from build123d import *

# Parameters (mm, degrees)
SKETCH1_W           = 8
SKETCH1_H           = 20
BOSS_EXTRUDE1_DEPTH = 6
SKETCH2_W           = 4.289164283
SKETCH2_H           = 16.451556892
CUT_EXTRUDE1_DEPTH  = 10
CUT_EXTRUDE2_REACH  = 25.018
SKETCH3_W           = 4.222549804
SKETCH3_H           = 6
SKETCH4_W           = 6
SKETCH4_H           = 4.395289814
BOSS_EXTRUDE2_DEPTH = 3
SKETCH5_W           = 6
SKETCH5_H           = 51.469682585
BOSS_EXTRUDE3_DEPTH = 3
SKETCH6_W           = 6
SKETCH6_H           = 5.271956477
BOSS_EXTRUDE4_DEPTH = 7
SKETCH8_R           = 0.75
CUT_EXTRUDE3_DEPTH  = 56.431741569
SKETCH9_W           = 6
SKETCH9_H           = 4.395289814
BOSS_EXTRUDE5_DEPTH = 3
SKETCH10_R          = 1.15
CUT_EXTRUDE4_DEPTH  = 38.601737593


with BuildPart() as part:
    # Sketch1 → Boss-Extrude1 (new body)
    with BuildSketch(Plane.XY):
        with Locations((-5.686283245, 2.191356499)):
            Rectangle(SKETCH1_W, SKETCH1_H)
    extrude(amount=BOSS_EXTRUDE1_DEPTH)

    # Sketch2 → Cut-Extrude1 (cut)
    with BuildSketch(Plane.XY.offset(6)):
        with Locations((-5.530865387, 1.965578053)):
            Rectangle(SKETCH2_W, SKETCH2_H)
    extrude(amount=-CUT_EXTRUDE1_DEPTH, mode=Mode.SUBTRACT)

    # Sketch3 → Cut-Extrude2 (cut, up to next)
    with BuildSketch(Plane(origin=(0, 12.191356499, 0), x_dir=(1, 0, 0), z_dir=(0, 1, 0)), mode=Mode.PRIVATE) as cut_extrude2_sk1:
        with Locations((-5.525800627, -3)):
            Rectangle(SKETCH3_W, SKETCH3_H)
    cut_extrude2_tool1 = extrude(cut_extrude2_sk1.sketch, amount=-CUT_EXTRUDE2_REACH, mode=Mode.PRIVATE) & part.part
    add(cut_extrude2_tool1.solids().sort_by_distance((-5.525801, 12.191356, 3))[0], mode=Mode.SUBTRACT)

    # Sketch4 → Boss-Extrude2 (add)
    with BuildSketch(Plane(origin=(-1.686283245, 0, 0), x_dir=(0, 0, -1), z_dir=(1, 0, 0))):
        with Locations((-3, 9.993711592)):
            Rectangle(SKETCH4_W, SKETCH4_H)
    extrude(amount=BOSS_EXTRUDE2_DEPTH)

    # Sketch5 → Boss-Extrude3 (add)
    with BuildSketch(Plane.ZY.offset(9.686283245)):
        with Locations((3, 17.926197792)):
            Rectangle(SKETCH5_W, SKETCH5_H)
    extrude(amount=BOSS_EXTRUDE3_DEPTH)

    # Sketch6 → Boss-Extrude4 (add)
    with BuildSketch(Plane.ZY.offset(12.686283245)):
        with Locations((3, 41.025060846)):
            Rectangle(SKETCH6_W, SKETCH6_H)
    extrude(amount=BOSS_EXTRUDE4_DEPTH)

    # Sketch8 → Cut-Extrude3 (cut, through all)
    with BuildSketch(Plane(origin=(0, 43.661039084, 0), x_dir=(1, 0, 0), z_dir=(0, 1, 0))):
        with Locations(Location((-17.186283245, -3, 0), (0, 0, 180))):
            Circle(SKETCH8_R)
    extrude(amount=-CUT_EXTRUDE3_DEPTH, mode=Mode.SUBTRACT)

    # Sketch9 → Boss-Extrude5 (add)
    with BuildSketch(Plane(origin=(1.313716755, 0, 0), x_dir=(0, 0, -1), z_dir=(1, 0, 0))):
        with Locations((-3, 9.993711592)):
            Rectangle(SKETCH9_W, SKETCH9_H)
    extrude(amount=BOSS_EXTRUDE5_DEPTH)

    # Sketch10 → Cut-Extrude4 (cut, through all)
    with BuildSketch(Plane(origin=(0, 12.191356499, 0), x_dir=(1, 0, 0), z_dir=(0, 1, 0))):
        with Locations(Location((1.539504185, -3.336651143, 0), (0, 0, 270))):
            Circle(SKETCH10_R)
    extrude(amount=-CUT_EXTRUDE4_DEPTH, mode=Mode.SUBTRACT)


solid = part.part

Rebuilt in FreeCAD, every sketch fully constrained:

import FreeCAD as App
import Part
import Sketcher

V = App.Vector

doc = App.newDocument("Part")
body = doc.addObject("PartDesign::Body", "Body")

sketch1 = body.newObject("Sketcher::SketchObject", "Sketch")
sketch1.AttachmentSupport = (doc.getObject("XY_Plane"), [""])
sketch1.MapMode = "FlatFace"
sketch1.addGeometry([
    Part.LineSegment(V(-10, 12, 0), V(-10, -8, 0)),
    Part.LineSegment(V(-10, -8, 0), V(-2, -8, 0)),
    Part.LineSegment(V(-2, -8, 0), V(-2, 12, 0)),
    Part.LineSegment(V(-2, 12, 0), V(-10, 12, 0)),
], False)
sketch1.addConstraint([
    Sketcher.Constraint("Coincident", 0, 2, 1, 1),
    Sketcher.Constraint("Coincident", 1, 2, 2, 1),
    Sketcher.Constraint("Coincident", 2, 2, 3, 1),
    Sketcher.Constraint("Coincident", 3, 2, 0, 1),
    Sketcher.Constraint("Vertical", 0),
    Sketcher.Constraint("Horizontal", 1),
    Sketcher.Constraint("Vertical", 2),
    Sketcher.Constraint("Horizontal", 3),
    Sketcher.Constraint("DistanceX", 1, 1, 1, 2, 8.0),
    Sketcher.Constraint("DistanceY", 0, 2, 0, 1, 20.0),
    Sketcher.Constraint("DistanceX", 0, 2, -1, 1, 9.686283),
    Sketcher.Constraint("DistanceY", 0, 2, -1, 1, 7.808644),
])
pad1 = body.newObject("PartDesign::Pad", "Pad")
pad1.Profile = sketch1
pad1.Length = 6

sketch2 = body.newObject("Sketcher::SketchObject", "Sketch001")
sketch2.AttachmentSupport = (doc.getObject("XY_Plane"), [""])
sketch2.MapMode = "FlatFace"
sketch2.AttachmentOffset = App.Placement(V(0, 0, 6), App.Rotation())
sketch2.addGeometry([
    Part.LineSegment(V(-7.7, 10.2, 0), V(-7.7, -6.3, 0)),
    Part.LineSegment(V(-7.7, -6.3, 0), V(-3.4, -6.3, 0)),
    Part.LineSegment(V(-3.4, -6.3, 0), V(-3.4, 10.2, 0)),
    Part.LineSegment(V(-3.4, 10.2, 0), V(-7.7, 10.2, 0)),
], False)
sketch2.addConstraint([
    Sketcher.Constraint("Coincident", 0, 2, 1, 1),
    Sketcher.Constraint("Coincident", 1, 2, 2, 1),
    Sketcher.Constraint("Coincident", 2, 2, 3, 1),
    Sketcher.Constraint("Coincident", 3, 2, 0, 1),
    Sketcher.Constraint("Vertical", 0),
    Sketcher.Constraint("Horizontal", 1),
    Sketcher.Constraint("Vertical", 2),
    Sketcher.Constraint("Horizontal", 3),
    Sketcher.Constraint("DistanceY", 0, 2, -1, 1, 6.2602),
    Sketcher.Constraint("DistanceX", 1, 1, 1, 2, 4.289164),
    Sketcher.Constraint("DistanceY", 0, 2, 0, 1, 16.451557),
    Sketcher.Constraint("DistanceX", 0, 2, -1, 1, 7.675448),
])
pocket1 = body.newObject("PartDesign::Pocket", "Pocket")
pocket1.Profile = sketch2
pocket1.Length = 10

sketch3 = body.newObject("Sketcher::SketchObject", "Sketch002")
sketch3.AttachmentSupport = (doc.getObject("XZ_Plane"), [""])
sketch3.MapMode = "FlatFace"
sketch3.AttachmentOffset = App.Placement(V(0, 0, -12.191356), App.Rotation())
sketch3.addGeometry([
    Part.LineSegment(V(-7.6, 0, 0), V(-7.6, 6, 0)),
    Part.LineSegment(V(-7.6, 6, 0), V(-3.4, 6, 0)),
    Part.LineSegment(V(-3.4, 6, 0), V(-3.4, 0, 0)),
    Part.LineSegment(V(-3.4, 0, 0), V(-7.6, 0, 0)),
], False)
sketch3.addConstraint([
    Sketcher.Constraint("Coincident", 0, 2, 1, 1),
    Sketcher.Constraint("Coincident", 1, 2, 2, 1),
    Sketcher.Constraint("Coincident", 2, 2, 3, 1),
    Sketcher.Constraint("Coincident", 3, 2, 0, 1),
    Sketcher.Constraint("Vertical", 0),
    Sketcher.Constraint("Horizontal", 1),
    Sketcher.Constraint("Vertical", 2),
    Sketcher.Constraint("Horizontal", 3),
    Sketcher.Constraint("PointOnObject", 2, 2, -1),
    Sketcher.Constraint("DistanceY", 0, 1, 0, 2, 6.0),
    Sketcher.Constraint("DistanceX", 1, 1, 1, 2, 4.22255),
    Sketcher.Constraint("DistanceX", 0, 2, -1, 1, 7.637076),
])
pocket2 = body.newObject("PartDesign::Pocket", "Pocket001")
pocket2.Profile = sketch3
pocket2.Type = "UpToFirst"
pocket2.Reversed = True

sketch4 = body.newObject("Sketcher::SketchObject", "Sketch003")
sketch4.AttachmentSupport = (doc.getObject("YZ_Plane"), [""])
sketch4.MapMode = "FlatFace"
sketch4.AttachmentOffset = App.Placement(V(0, 0, -1.686283), App.Rotation())
sketch4.addGeometry([
    Part.LineSegment(V(12.2, 6, 0), V(7.8, 6, 0)),
    Part.LineSegment(V(7.8, 6, 0), V(7.8, 0, 0)),
    Part.LineSegment(V(7.8, 0, 0), V(12.2, 0, 0)),
    Part.LineSegment(V(12.2, 0, 0), V(12.2, 6, 0)),
], False)
sketch4.addConstraint([
    Sketcher.Constraint("Coincident", 0, 2, 1, 1),
    Sketcher.Constraint("Coincident", 1, 2, 2, 1),
    Sketcher.Constraint("Coincident", 2, 2, 3, 1),
    Sketcher.Constraint("Coincident", 3, 2, 0, 1),
    Sketcher.Constraint("Horizontal", 0),
    Sketcher.Constraint("Vertical", 1),
    Sketcher.Constraint("Horizontal", 2),
    Sketcher.Constraint("Vertical", 3),
    Sketcher.Constraint("PointOnObject", 1, 2, -1),
    Sketcher.Constraint("DistanceY", 1, 2, 1, 1, 6.0),
    Sketcher.Constraint("DistanceX", 0, 2, 0, 1, 4.39529),
    Sketcher.Constraint("DistanceX", -1, 1, 0, 2, 7.796067),
])
pad2 = body.newObject("PartDesign::Pad", "Pad001")
pad2.Profile = sketch4
pad2.Length = 3

sketch5 = body.newObject("Sketcher::SketchObject", "Sketch004")
sketch5.AttachmentSupport = (doc.getObject("YZ_Plane"), [""])
sketch5.MapMode = "FlatFace"
sketch5.AttachmentOffset = App.Placement(V(0, 0, -9.686283), App.Rotation())
sketch5.addGeometry([
    Part.LineSegment(V(44, 0, 0), V(-8, 0, 0)),
    Part.LineSegment(V(-8, 0, 0), V(-8, 6, 0)),
    Part.LineSegment(V(-8, 6, 0), V(44, 6, 0)),
    Part.LineSegment(V(44, 6, 0), V(44, 0, 0)),
], False)
sketch5.addConstraint([
    Sketcher.Constraint("Coincident", 0, 2, 1, 1),
    Sketcher.Constraint("Coincident", 1, 2, 2, 1),
    Sketcher.Constraint("Coincident", 2, 2, 3, 1),
    Sketcher.Constraint("Coincident", 3, 2, 0, 1),
    Sketcher.Constraint("Horizontal", 0),
    Sketcher.Constraint("Vertical", 1),
    Sketcher.Constraint("Horizontal", 2),
    Sketcher.Constraint("Vertical", 3),
    Sketcher.Constraint("PointOnObject", 0, 2, -1),
    Sketcher.Constraint("DistanceY", 1, 1, 1, 2, 6.0),
    Sketcher.Constraint("DistanceX", 0, 2, 0, 1, 51.469683),
    Sketcher.Constraint("DistanceX", -1, 1, 2, 2, 43.661039),
])
pad3 = body.newObject("PartDesign::Pad", "Pad002")
pad3.Profile = sketch5
pad3.Length = 3
pad3.Reversed = True

sketch6 = body.newObject("Sketcher::SketchObject", "Sketch005")
sketch6.AttachmentSupport = (doc.getObject("YZ_Plane"), [""])
sketch6.MapMode = "FlatFace"
sketch6.AttachmentOffset = App.Placement(V(0, 0, -12.686283), App.Rotation())
sketch6.addGeometry([
    Part.LineSegment(V(44, 0, 0), V(38, 0, 0)),
    Part.LineSegment(V(38, 0, 0), V(38, 6, 0)),
    Part.LineSegment(V(38, 6, 0), V(44, 6, 0)),
    Part.LineSegment(V(44, 6, 0), V(44, 0, 0)),
], False)
sketch6.addConstraint([
    Sketcher.Constraint("Coincident", 0, 2, 1, 1),
    Sketcher.Constraint("Coincident", 1, 2, 2, 1),
    Sketcher.Constraint("Coincident", 2, 2, 3, 1),
    Sketcher.Constraint("Coincident", 3, 2, 0, 1),
    Sketcher.Constraint("Horizontal", 0),
    Sketcher.Constraint("Vertical", 1),
    Sketcher.Constraint("Horizontal", 2),
    Sketcher.Constraint("Vertical", 3),
    Sketcher.Constraint("PointOnObject", 0, 2, -1),
    Sketcher.Constraint("DistanceY", 1, 1, 1, 2, 6.0),
    Sketcher.Constraint("DistanceX", 0, 2, 0, 1, 5.271956),
    Sketcher.Constraint("DistanceX", -1, 1, 2, 2, 43.661039),
])
pad4 = body.newObject("PartDesign::Pad", "Pad003")
pad4.Profile = sketch6
pad4.Length = 7
pad4.Reversed = True

sketch7 = body.newObject("Sketcher::SketchObject", "Sketch006")
sketch7.AttachmentSupport = (doc.getObject("XZ_Plane"), [""])
sketch7.MapMode = "FlatFace"
sketch7.AttachmentOffset = App.Placement(V(0, 0, -43.661039), App.Rotation())
sketch7.addGeometry(Part.Circle(V(-17.2, 3, 0), V(0, 0, 1), 0.8), False)
sketch7.addConstraint([
    Sketcher.Constraint("Diameter", 0, 1.5),
    Sketcher.Constraint("DistanceY", -1, 1, 0, 3, 3.0),
    Sketcher.Constraint("DistanceX", 0, 3, -1, 1, 17.186283),
])
pocket3 = body.newObject("PartDesign::Pocket", "Pocket002")
pocket3.Profile = sketch7
pocket3.Type = "ThroughAll"
pocket3.Reversed = True

sketch8 = body.newObject("Sketcher::SketchObject", "Sketch007")
sketch8.AttachmentSupport = (doc.getObject("YZ_Plane"), [""])
sketch8.MapMode = "FlatFace"
sketch8.AttachmentOffset = App.Placement(V(0, 0, 1.313717), App.Rotation())
sketch8.addGeometry([
    Part.LineSegment(V(12.2, 6, 0), V(7.8, 6, 0)),
    Part.LineSegment(V(7.8, 6, 0), V(7.8, 0, 0)),
    Part.LineSegment(V(7.8, 0, 0), V(12.2, 0, 0)),
    Part.LineSegment(V(12.2, 0, 0), V(12.2, 6, 0)),
], False)
sketch8.addConstraint([
    Sketcher.Constraint("Coincident", 0, 2, 1, 1),
    Sketcher.Constraint("Coincident", 1, 2, 2, 1),
    Sketcher.Constraint("Coincident", 2, 2, 3, 1),
    Sketcher.Constraint("Coincident", 3, 2, 0, 1),
    Sketcher.Constraint("Horizontal", 0),
    Sketcher.Constraint("Vertical", 1),
    Sketcher.Constraint("Horizontal", 2),
    Sketcher.Constraint("Vertical", 3),
    Sketcher.Constraint("PointOnObject", 1, 2, -1),
    Sketcher.Constraint("DistanceY", 1, 2, 1, 1, 6.0),
    Sketcher.Constraint("DistanceX", 0, 2, 0, 1, 4.39529),
    Sketcher.Constraint("DistanceX", -1, 1, 0, 2, 7.796067),
])
pad5 = body.newObject("PartDesign::Pad", "Pad004")
pad5.Profile = sketch8
pad5.Length = 3

sketch9 = body.newObject("Sketcher::SketchObject", "Sketch008")
sketch9.AttachmentSupport = (doc.getObject("XZ_Plane"), [""])
sketch9.MapMode = "FlatFace"
sketch9.AttachmentOffset = App.Placement(V(0, 0, -12.191356), App.Rotation())
sketch9.addGeometry(Part.Circle(V(1.5, 3.3, 0), V(0, 0, 1), 1.1), False)
sketch9.addConstraint([
    Sketcher.Constraint("Diameter", 0, 2.3),
    Sketcher.Constraint("DistanceY", -1, 1, 0, 3, 3.336651),
    Sketcher.Constraint("DistanceX", -1, 1, 0, 3, 1.539504),
])
pocket4 = body.newObject("PartDesign::Pocket", "Pocket003")
pocket4.Profile = sketch9
pocket4.Type = "ThroughAll"
pocket4.Reversed = True

doc.recompute()
